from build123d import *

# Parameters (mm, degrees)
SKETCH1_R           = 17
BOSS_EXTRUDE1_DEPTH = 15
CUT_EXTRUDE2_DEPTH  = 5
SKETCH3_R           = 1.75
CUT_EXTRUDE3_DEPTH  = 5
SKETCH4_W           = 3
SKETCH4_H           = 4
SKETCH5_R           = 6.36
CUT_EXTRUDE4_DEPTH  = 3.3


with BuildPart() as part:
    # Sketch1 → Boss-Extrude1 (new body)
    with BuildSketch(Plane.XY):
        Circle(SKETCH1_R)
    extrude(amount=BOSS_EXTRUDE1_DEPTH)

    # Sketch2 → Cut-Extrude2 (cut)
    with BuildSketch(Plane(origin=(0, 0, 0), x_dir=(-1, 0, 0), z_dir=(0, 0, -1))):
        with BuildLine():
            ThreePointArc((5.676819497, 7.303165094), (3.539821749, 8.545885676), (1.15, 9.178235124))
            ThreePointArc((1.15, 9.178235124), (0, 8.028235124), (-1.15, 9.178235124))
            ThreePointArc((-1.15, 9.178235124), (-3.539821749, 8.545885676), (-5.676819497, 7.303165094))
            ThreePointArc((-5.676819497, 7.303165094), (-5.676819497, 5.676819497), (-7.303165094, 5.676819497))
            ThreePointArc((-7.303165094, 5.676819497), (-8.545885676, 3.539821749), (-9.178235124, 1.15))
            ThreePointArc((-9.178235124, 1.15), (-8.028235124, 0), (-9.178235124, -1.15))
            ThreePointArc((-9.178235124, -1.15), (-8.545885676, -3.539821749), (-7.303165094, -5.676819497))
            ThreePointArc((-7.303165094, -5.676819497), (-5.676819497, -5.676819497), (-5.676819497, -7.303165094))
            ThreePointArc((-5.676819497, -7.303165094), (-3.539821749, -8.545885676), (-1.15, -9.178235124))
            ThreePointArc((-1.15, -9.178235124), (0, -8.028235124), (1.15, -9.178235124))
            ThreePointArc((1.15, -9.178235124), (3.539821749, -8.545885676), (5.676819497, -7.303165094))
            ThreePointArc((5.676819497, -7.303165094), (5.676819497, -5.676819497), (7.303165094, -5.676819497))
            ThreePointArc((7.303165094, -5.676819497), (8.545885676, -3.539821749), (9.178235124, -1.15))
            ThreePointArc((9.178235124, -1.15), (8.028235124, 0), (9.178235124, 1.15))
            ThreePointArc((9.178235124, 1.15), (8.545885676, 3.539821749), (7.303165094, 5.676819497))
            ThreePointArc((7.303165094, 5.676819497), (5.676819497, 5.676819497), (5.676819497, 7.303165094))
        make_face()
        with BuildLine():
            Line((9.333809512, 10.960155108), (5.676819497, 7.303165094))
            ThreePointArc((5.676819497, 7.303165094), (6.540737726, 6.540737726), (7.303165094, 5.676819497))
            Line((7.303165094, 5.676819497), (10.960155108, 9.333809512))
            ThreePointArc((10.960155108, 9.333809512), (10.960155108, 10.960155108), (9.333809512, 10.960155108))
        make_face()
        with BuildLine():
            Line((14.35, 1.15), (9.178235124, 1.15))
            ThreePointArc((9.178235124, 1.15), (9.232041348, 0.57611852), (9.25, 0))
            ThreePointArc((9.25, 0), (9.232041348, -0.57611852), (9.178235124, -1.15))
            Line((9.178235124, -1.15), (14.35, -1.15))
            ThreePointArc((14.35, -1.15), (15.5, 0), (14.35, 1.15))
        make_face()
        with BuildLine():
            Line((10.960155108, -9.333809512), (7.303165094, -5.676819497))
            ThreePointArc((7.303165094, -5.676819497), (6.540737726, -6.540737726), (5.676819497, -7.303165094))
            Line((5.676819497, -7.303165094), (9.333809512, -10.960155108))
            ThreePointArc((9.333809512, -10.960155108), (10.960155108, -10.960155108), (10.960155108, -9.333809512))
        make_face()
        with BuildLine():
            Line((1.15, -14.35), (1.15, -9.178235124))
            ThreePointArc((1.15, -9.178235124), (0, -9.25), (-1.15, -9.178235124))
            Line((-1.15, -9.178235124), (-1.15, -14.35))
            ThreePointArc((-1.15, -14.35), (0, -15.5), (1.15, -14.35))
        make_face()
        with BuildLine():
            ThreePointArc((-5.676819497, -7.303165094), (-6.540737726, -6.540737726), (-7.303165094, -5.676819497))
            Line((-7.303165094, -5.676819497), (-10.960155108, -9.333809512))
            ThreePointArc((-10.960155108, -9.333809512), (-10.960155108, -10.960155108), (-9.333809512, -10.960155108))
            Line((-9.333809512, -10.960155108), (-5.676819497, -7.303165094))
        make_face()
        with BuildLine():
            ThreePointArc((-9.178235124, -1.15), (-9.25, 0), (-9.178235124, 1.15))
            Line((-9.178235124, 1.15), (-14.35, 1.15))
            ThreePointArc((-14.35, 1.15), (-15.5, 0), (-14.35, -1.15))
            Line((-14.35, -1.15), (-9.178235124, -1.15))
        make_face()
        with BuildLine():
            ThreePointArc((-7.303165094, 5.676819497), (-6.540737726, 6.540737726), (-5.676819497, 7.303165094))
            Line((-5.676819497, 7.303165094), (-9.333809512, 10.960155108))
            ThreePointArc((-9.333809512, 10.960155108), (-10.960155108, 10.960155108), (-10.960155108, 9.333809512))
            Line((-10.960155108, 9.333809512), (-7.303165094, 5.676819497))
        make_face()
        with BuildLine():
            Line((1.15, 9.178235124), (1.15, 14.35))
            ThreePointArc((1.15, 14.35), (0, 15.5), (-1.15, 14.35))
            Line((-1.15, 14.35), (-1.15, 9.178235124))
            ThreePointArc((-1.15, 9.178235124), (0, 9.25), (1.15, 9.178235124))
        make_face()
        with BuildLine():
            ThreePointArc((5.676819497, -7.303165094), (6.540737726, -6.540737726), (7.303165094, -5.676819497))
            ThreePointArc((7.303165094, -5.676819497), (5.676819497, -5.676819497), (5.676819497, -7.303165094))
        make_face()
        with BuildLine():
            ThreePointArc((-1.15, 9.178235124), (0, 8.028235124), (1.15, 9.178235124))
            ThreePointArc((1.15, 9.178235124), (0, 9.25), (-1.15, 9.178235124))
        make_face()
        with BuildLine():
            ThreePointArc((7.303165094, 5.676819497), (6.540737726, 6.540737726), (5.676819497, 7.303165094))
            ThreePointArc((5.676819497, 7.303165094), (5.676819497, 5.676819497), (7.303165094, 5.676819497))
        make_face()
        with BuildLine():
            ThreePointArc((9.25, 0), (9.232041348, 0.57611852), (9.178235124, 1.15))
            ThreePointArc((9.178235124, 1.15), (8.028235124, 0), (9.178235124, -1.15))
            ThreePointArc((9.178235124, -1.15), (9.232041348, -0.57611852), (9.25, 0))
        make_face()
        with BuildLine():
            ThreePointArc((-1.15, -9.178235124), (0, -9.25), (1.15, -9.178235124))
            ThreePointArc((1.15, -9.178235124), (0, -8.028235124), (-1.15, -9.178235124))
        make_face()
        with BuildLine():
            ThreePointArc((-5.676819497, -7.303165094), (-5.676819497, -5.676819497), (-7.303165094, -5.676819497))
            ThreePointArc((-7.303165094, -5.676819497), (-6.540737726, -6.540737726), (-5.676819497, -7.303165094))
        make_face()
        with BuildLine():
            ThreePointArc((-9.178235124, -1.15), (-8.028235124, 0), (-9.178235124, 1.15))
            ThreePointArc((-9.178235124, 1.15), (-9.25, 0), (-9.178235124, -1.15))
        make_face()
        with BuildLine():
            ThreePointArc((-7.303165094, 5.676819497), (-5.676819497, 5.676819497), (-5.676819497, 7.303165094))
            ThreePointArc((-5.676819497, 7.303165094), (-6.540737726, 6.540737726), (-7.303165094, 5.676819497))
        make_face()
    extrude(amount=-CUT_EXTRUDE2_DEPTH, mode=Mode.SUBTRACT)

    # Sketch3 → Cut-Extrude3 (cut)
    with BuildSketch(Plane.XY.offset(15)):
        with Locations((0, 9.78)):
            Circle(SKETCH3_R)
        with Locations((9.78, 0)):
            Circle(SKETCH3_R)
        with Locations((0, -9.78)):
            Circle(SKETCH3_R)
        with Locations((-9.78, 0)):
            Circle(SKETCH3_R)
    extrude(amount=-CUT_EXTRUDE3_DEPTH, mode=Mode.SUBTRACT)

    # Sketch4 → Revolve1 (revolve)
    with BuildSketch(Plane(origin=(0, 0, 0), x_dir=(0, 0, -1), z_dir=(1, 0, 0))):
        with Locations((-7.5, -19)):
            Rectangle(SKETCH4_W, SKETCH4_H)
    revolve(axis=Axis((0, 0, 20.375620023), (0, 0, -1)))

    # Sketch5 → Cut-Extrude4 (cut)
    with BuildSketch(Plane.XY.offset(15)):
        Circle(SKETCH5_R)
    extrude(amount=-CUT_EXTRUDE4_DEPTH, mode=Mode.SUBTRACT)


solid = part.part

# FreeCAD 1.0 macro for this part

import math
import FreeCAD as App
import Part
import Sketcher

V = App.Vector

doc = App.newDocument("Part")
body = doc.addObject("PartDesign::Body", "Body")

# Sketch on XY plane
sketch1 = body.newObject("Sketcher::SketchObject", "Sketch")
sketch1.AttachmentSupport = (doc.getObject("XY_Plane"), [""])
sketch1.MapMode = "FlatFace"
sketch1.addGeometry(Part.Circle(V(0, 0, 0), V(0, 0, 1), 17), False)
sketch1.addConstraint(Sketcher.Constraint("Coincident", 0, 3, -1, 1))
sketch1.addConstraint(Sketcher.Constraint("Diameter", 0, 34.0))
pad1 = body.newObject("PartDesign::Pad", "Pad")
pad1.Profile = sketch1
pad1.Length = 15

# Sketch on XY plane
sketch2 = body.newObject("Sketcher::SketchObject", "Sketch001")
sketch2.AttachmentSupport = (doc.getObject("XY_Plane"), [""])
sketch2.MapMode = "FlatFace"
sketch2.addGeometry(Part.ArcOfCircle(Part.Circle(V(0, 0, 0), V(0, 0, 1), 9.25), math.radians(97.141738), math.radians(127.858262)), False)
sketch2.addGeometry(Part.LineSegment(V(-1.15, 9.178235, 0), V(-1.15, 14.35, 0)), False)
sketch2.addGeometry(Part.ArcOfCircle(Part.Circle(V(0, 14.35, 0), V(0, 0, 1), 1.15), math.radians(0), math.radians(180)), False)
sketch2.addGeometry(Part.LineSegment(V(1.15, 14.35, 0), V(1.15, 9.178235, 0)), False)
sketch2.addGeometry(Part.ArcOfCircle(Part.Circle(V(0, 0, 0), V(0, 0, 1), 9.25), math.radians(52.141738), math.radians(82.858262)), False)
sketch2.addGeometry(Part.LineSegment(V(5.676819, 7.303165, 0), V(9.33381, 10.960155, 0)), False)
sketch2.addGeometry(Part.ArcOfCircle(Part.Circle(V(10.146982, 10.146982, 0), V(0, 0, 1), 1.15), math.radians(-45), math.radians(135)), False)
sketch2.addGeometry(Part.LineSegment(V(10.960155, 9.33381, 0), V(7.303165, 5.676819, 0)), False)
sketch2.addGeometry(Part.ArcOfCircle(Part.Circle(V(0, 0, 0), V(0, 0, 1), 9.25), math.radians(7.141738), math.radians(37.858262)), False)
sketch2.addGeometry(Part.LineSegment(V(9.178235, 1.15, 0), V(14.35, 1.15, 0)), False)
sketch2.addGeometry(Part.ArcOfCircle(Part.Circle(V(14.35, 0, 0), V(0, 0, 1), 1.15), math.radians(-90), math.radians(90)), False)
sketch2.addGeometry(Part.LineSegment(V(14.35, -1.15, 0), V(9.178235, -1.15, 0)), False)
sketch2.addGeometry(Part.ArcOfCircle(Part.Circle(V(0, 0, 0), V(0, 0, 1), 9.25), math.radians(-37.858262), math.radians(-7.141738)), False)
sketch2.addGeometry(Part.LineSegment(V(7.303165, -5.676819, 0), V(10.960155, -9.33381, 0)), False)
sketch2.addGeometry(Part.ArcOfCircle(Part.Circle(V(10.146982, -10.146982, 0), V(0, 0, 1), 1.15), math.radians(-135), math.radians(45)), False)
sketch2.addGeometry(Part.LineSegment(V(9.33381, -10.960155, 0), V(5.676819, -7.303165, 0)), False)
sketch2.addGeometry(Part.ArcOfCircle(Part.Circle(V(0, 0, 0), V(0, 0, 1), 9.25), math.radians(-82.858262), math.radians(-52.141738)), False)
sketch2.addGeometry(Part.LineSegment(V(1.15, -9.178235, 0), V(1.15, -14.35, 0)), False)
sketch2.addGeometry(Part.ArcOfCircle(Part.Circle(V(0, -14.35, 0), V(0, 0, 1), 1.15), math.radians(180), math.radians(360)), False)
sketch2.addGeometry(Part.LineSegment(V(-1.15, -14.35, 0), V(-1.15, -9.178235, 0)), False)
sketch2.addGeometry(Part.ArcOfCircle(Part.Circle(V(0, 0, 0), V(0, 0, 1), 9.25), math.radians(-127.858262), math.radians(-97.141738)), False)
sketch2.addGeometry(Part.LineSegment(V(-5.676819, -7.303165, 0), V(-9.33381, -10.960155, 0)), False)
sketch2.addGeometry(Part.ArcOfCircle(Part.Circle(V(-10.146982, -10.146982, 0), V(0, 0, 1), 1.15), math.radians(135), math.radians(315)), False)
sketch2.addGeometry(Part.LineSegment(V(-10.960155, -9.33381, 0), V(-7.303165, -5.676819, 0)), False)
sketch2.addGeometry(Part.ArcOfCircle(Part.Circle(V(0, 0, 0), V(0, 0, 1), 9.25), math.radians(-172.858262), math.radians(-142.141738)), False)
sketch2.addGeometry(Part.LineSegment(V(-9.178235, -1.15, 0), V(-14.35, -1.15, 0)), False)
sketch2.addGeometry(Part.ArcOfCircle(Part.Circle(V(-14.35, 0, 0), V(0, 0, 1), 1.15), math.radians(90), math.radians(270)), False)
sketch2.addGeometry(Part.LineSegment(V(-14.35, 1.15, 0), V(-9.178235, 1.15, 0)), False)
sketch2.addGeometry(Part.ArcOfCircle(Part.Circle(V(0, 0, 0), V(0, 0, 1), 9.25), math.radians(142.141738), math.radians(172.858262)), False)
sketch2.addGeometry(Part.LineSegment(V(-7.303165, 5.676819, 0), V(-10.960155, 9.33381, 0)), False)
sketch2.addGeometry(Part.ArcOfCircle(Part.Circle(V(-10.146982, 10.146982, 0), V(0, 0, 1), 1.15), math.radians(45), math.radians(225)), False)
sketch2.addGeometry(Part.LineSegment(V(-9.33381, 10.960155, 0), V(-5.676819, 7.303165, 0)), False)
sketch2.addConstraint(Sketcher.Constraint("Coincident", 0, 1, 1, 1))
sketch2.addConstraint(Sketcher.Constraint("Tangent", 1, 2, 2, 2))
sketch2.addConstraint(Sketcher.Constraint("Tangent", 2, 1, 3, 1))
sketch2.addConstraint(Sketcher.Constraint("Coincident", 3, 2, 4, 2))
sketch2.addConstraint(Sketcher.Constraint("Coincident", 4, 1, 5, 1))
sketch2.addConstraint(Sketcher.Constraint("Tangent", 5, 2, 6, 2))
sketch2.addConstraint(Sketcher.Constraint("Tangent", 6, 1, 7, 1))
sketch2.addConstraint(Sketcher.Constraint("Coincident", 7, 2, 8, 2))
sketch2.addConstraint(Sketcher.Constraint("Coincident", 8, 1, 9, 1))
sketch2.addConstraint(Sketcher.Constraint("Tangent", 9, 2, 10, 2))
sketch2.addConstraint(Sketcher.Constraint("Tangent", 10, 1, 11, 1))
sketch2.addConstraint(Sketcher.Constraint("Coincident", 11, 2, 12, 2))
sketch2.addConstraint(Sketcher.Constraint("Coincident", 12, 1, 13, 1))
sketch2.addConstraint(Sketcher.Constraint("Tangent", 13, 2, 14, 2))
sketch2.addConstraint(Sketcher.Constraint("Tangent", 14, 1, 15, 1))
sketch2.addConstraint(Sketcher.Constraint("Coincident", 15, 2, 16, 2))
sketch2.addConstraint(Sketcher.Constraint("Coincident", 16, 1, 17, 1))
sketch2.addConstraint(Sketcher.Constraint("Tangent", 17, 2, 18, 2))
sketch2.addConstraint(Sketcher.Constraint("Tangent", 18, 1, 19, 1))
sketch2.addConstraint(Sketcher.Constraint("Coincident", 19, 2, 20, 2))
sketch2.addConstraint(Sketcher.Constraint("Coincident", 20, 1, 21, 1))
sketch2.addConstraint(Sketcher.Constraint("Tangent", 21, 2, 22, 2))
sketch2.addConstraint(Sketcher.Constraint("Tangent", 22, 1, 23, 1))
sketch2.addConstraint(Sketcher.Constraint("Coincident", 23, 2, 24, 2))
sketch2.addConstraint(Sketcher.Constraint("Coincident", 24, 1, 25, 1))
sketch2.addConstraint(Sketcher.Constraint("Tangent", 25, 2, 26, 2))
sketch2.addConstraint(Sketcher.Constraint("Tangent", 26, 1, 27, 1))
sketch2.addConstraint(Sketcher.Constraint("Coincident", 27, 2, 28, 2))
sketch2.addConstraint(Sketcher.Constraint("Coincident", 28, 1, 29, 1))
sketch2.addConstraint(Sketcher.Constraint("Tangent", 29, 2, 30, 2))
sketch2.addConstraint(Sketcher.Constraint("Tangent", 30, 1, 31, 1))
sketch2.addConstraint(Sketcher.Constraint("Coincident", 31, 2, 0, 2))
sketch2.addConstraint(Sketcher.Constraint("Vertical", 1))
sketch2.addConstraint(Sketcher.Constraint("Vertical", 3))
sketch2.addConstraint(Sketcher.Constraint("Horizontal", 9))
sketch2.addConstraint(Sketcher.Constraint("Horizontal", 11))
sketch2.addConstraint(Sketcher.Constraint("Vertical", 17))
sketch2.addConstraint(Sketcher.Constraint("Vertical", 19))
sketch2.addConstraint(Sketcher.Constraint("Horizontal", 25))
sketch2.addConstraint(Sketcher.Constraint("Horizontal", 27))
sketch2.addConstraint(Sketcher.Constraint("Coincident", 0, 3, -1, 1))
sketch2.addConstraint(Sketcher.Constraint("Coincident", 4, 3, -1, 1))
sketch2.addConstraint(Sketcher.Constraint("Coincident", 8, 3, -1, 1))
sketch2.addConstraint(Sketcher.Constraint("Coincident", 12, 3, -1, 1))
sketch2.addConstraint(Sketcher.Constraint("Coincident", 16, 3, -1, 1))
sketch2.addConstraint(Sketcher.Constraint("Coincident", 20, 3, -1, 1))
sketch2.addConstraint(Sketcher.Constraint("Coincident", 24, 3, -1, 1))
sketch2.addConstraint(Sketcher.Constraint("Coincident", 28, 3, -1, 1))
sketch2.addConstraint(Sketcher.Constraint("Equal", 0, 4))
sketch2.addConstraint(Sketcher.Constraint("Equal", 2, 6))
sketch2.addConstraint(Sketcher.Constraint("Equal", 4, 8))
sketch2.addConstraint(Sketcher.Constraint("Equal", 6, 10))
sketch2.addConstraint(Sketcher.Constraint("Equal", 8, 12))
sketch2.addConstraint(Sketcher.Constraint("Equal", 10, 14))
sketch2.addConstraint(Sketcher.Constraint("Equal", 12, 16))
sketch2.addConstraint(Sketcher.Constraint("Equal", 14, 18))
sketch2.addConstraint(Sketcher.Constraint("Equal", 16, 20))
sketch2.addConstraint(Sketcher.Constraint("Equal", 18, 22))
sketch2.addConstraint(Sketcher.Constraint("Equal", 20, 24))
sketch2.addConstraint(Sketcher.Constraint("Equal", 22, 26))
sketch2.addConstraint(Sketcher.Constraint("Equal", 24, 28))
sketch2.addConstraint(Sketcher.Constraint("Equal", 26, 30))
sketch2.addConstraint(Sketcher.Constraint("Symmetric", 2, 3, 18, 3, -1, 1))
sketch2.addConstraint(Sketcher.Constraint("Symmetric", 6, 3, 22, 3, -1, 1))
sketch2.addConstraint(Sketcher.Constraint("Symmetric", 10, 3, 26, 3, -1, 1))
sketch2.addConstraint(Sketcher.Constraint("Symmetric", 14, 3, 30, 3, -1, 1))
sketch2.addConstraint(Sketcher.Constraint("Symmetric", 14, 3, 22, 3, -2))
sketch2.addConstraint(Sketcher.Constraint("PointOnObject", 2, 3, -2))
sketch2.addConstraint(Sketcher.Constraint("PointOnObject", 10, 3, -1))
sketch2.addConstraint(Sketcher.Constraint("Parallel", 5, 7))
sketch2.addConstraint(Sketcher.Constraint("Perpendicular", 7, 13))
sketch2.addConstraint(Sketcher.Constraint("Parallel", 13, 15))
sketch2.addConstraint(Sketcher.Constraint("Perpendicular", 15, 21))
sketch2.addConstraint(Sketcher.Constraint("Parallel", 21, 23))
sketch2.addConstraint(Sketcher.Constraint("Perpendicular", 23, 29))
sketch2.addConstraint(Sketcher.Constraint("Parallel", 29, 31))
sketch2.addConstraint(Sketcher.Constraint("Horizontal", 15, 2, 20, 1))
sketch2.addConstraint(Sketcher.Constraint("Equal", 27, 1))
sketch2.addConstraint(Sketcher.Constraint("Equal", 5, 7))
sketch2.addConstraint(Sketcher.Constraint("Radius", 0, 9.25))
sketch2.addConstraint(Sketcher.Constraint("Radius", 2, 1.15))
sketch2.addConstraint(Sketcher.Constraint("DistanceY", -1, 1, 2, 3, 14.35))
sketch2.addConstraint(Sketcher.Constraint("DistanceX", -1, 1, 5, 2, 9.33381))
pocket1 = body.newObject("PartDesign::Pocket", "Pocket")
pocket1.Profile = sketch2
pocket1.Length = 5
pocket1.Reversed = True

# Sketch on XY plane
sketch3 = body.newObject("Sketcher::SketchObject", "Sketch002")
sketch3.AttachmentSupport = (doc.getObject("XY_Plane"), [""])
sketch3.MapMode = "FlatFace"
sketch3.AttachmentOffset = App.Placement(V(0, 0, 15), App.Rotation())
sketch3.addGeometry(Part.Circle(V(0, 9.78, 0), V(0, 0, 1), 1.75), False)
sketch3.addGeometry(Part.Circle(V(9.78, 0, 0), V(0, 0, 1), 1.75), False)
sketch3.addGeometry(Part.Circle(V(0, -9.78, 0), V(0, 0, 1), 1.75), False)
sketch3.addGeometry(Part.Circle(V(-9.78, 0, 0), V(0, 0, 1), 1.75), False)
sketch3.addConstraint(Sketcher.Constraint("Equal", 0, 1))
sketch3.addConstraint(Sketcher.Constraint("Equal", 1, 2))
sketch3.addConstraint(Sketcher.Constraint("Equal", 2, 3))
sketch3.addConstraint(Sketcher.Constraint("Symmetric", 0, 3, 2, 3, -1, 1))
sketch3.addConstraint(Sketcher.Constraint("Symmetric", 1, 3, 3, 3, -1, 1))
sketch3.addConstraint(Sketcher.Constraint("PointOnObject", 0, 3, -2))
sketch3.addConstraint(Sketcher.Constraint("PointOnObject", 1, 3, -1))
sketch3.addConstraint(Sketcher.Constraint("Diameter", 0, 3.5))
sketch3.addConstraint(Sketcher.Constraint("DistanceY", -1, 1, 0, 3, 9.78))
sketch3.addConstraint(Sketcher.Constraint("DistanceX", -1, 1, 1, 3, 9.78))
pocket2 = body.newObject("PartDesign::Pocket", "Pocket001")
pocket2.Profile = sketch3
pocket2.Length = 5

# Sketch on YZ plane
sketch4 = body.newObject("Sketcher::SketchObject", "Sketch003")
sketch4.AttachmentSupport = (doc.getObject("YZ_Plane"), [""])
sketch4.MapMode = "FlatFace"
sketch4.addGeometry(Part.LineSegment(V(-17, 9, 0), V(-21, 9, 0)), False)
sketch4.addGeometry(Part.LineSegment(V(-21, 9, 0), V(-21, 6, 0)), False)
sketch4.addGeometry(Part.LineSegment(V(-21, 6, 0), V(-17, 6, 0)), False)
sketch4.addGeometry(Part.LineSegment(V(-17, 6, 0), V(-17, 9, 0)), False)
sketch4.addConstraint(Sketcher.Constraint("Coincident", 0, 2, 1, 1))
sketch4.addConstraint(Sketcher.Constraint("Coincident", 1, 2, 2, 1))
sketch4.addConstraint(Sketcher.Constraint("Coincident", 2, 2, 3, 1))
sketch4.addConstraint(Sketcher.Constraint("Coincident", 3, 2, 0, 1))
sketch4.addConstraint(Sketcher.Constraint("Horizontal", 0))
sketch4.addConstraint(Sketcher.Constraint("Vertical", 1))
sketch4.addConstraint(Sketcher.Constraint("Horizontal", 2))
sketch4.addConstraint(Sketcher.Constraint("Vertical", 3))
sketch4.addConstraint(Sketcher.Constraint("DistanceX", 0, 2, 0, 1, 4.0))
sketch4.addConstraint(Sketcher.Constraint("DistanceY", 1, 2, 1, 1, 3.0))
sketch4.addConstraint(Sketcher.Constraint("DistanceX", 0, 2, -1, 1, 21.0))
sketch4.addConstraint(Sketcher.Constraint("DistanceY", -1, 1, 0, 2, 9.0))
revolution = body.newObject("PartDesign::Revolution", "Revolution")
revolution.Profile = sketch4
revolution.ReferenceAxis = (sketch4, ["V_Axis"])
revolution.Angle = 360

# Sketch on XY plane
sketch5 = body.newObject("Sketcher::SketchObject", "Sketch004")
sketch5.AttachmentSupport = (doc.getObject("XY_Plane"), [""])
sketch5.MapMode = "FlatFace"
sketch5.AttachmentOffset = App.Placement(V(0, 0, 15), App.Rotation())
sketch5.addGeometry(Part.Circle(V(0, 0, 0), V(0, 0, 1), 6.36), False)
sketch5.addConstraint(Sketcher.Constraint("Coincident", 0, 3, -1, 1))
sketch5.addConstraint(Sketcher.Constraint("Diameter", 0, 12.72))
pocket3 = body.newObject("PartDesign::Pocket", "Pocket002")
pocket3.Profile = sketch5
pocket3.Length = 3.3

doc.recompute()
